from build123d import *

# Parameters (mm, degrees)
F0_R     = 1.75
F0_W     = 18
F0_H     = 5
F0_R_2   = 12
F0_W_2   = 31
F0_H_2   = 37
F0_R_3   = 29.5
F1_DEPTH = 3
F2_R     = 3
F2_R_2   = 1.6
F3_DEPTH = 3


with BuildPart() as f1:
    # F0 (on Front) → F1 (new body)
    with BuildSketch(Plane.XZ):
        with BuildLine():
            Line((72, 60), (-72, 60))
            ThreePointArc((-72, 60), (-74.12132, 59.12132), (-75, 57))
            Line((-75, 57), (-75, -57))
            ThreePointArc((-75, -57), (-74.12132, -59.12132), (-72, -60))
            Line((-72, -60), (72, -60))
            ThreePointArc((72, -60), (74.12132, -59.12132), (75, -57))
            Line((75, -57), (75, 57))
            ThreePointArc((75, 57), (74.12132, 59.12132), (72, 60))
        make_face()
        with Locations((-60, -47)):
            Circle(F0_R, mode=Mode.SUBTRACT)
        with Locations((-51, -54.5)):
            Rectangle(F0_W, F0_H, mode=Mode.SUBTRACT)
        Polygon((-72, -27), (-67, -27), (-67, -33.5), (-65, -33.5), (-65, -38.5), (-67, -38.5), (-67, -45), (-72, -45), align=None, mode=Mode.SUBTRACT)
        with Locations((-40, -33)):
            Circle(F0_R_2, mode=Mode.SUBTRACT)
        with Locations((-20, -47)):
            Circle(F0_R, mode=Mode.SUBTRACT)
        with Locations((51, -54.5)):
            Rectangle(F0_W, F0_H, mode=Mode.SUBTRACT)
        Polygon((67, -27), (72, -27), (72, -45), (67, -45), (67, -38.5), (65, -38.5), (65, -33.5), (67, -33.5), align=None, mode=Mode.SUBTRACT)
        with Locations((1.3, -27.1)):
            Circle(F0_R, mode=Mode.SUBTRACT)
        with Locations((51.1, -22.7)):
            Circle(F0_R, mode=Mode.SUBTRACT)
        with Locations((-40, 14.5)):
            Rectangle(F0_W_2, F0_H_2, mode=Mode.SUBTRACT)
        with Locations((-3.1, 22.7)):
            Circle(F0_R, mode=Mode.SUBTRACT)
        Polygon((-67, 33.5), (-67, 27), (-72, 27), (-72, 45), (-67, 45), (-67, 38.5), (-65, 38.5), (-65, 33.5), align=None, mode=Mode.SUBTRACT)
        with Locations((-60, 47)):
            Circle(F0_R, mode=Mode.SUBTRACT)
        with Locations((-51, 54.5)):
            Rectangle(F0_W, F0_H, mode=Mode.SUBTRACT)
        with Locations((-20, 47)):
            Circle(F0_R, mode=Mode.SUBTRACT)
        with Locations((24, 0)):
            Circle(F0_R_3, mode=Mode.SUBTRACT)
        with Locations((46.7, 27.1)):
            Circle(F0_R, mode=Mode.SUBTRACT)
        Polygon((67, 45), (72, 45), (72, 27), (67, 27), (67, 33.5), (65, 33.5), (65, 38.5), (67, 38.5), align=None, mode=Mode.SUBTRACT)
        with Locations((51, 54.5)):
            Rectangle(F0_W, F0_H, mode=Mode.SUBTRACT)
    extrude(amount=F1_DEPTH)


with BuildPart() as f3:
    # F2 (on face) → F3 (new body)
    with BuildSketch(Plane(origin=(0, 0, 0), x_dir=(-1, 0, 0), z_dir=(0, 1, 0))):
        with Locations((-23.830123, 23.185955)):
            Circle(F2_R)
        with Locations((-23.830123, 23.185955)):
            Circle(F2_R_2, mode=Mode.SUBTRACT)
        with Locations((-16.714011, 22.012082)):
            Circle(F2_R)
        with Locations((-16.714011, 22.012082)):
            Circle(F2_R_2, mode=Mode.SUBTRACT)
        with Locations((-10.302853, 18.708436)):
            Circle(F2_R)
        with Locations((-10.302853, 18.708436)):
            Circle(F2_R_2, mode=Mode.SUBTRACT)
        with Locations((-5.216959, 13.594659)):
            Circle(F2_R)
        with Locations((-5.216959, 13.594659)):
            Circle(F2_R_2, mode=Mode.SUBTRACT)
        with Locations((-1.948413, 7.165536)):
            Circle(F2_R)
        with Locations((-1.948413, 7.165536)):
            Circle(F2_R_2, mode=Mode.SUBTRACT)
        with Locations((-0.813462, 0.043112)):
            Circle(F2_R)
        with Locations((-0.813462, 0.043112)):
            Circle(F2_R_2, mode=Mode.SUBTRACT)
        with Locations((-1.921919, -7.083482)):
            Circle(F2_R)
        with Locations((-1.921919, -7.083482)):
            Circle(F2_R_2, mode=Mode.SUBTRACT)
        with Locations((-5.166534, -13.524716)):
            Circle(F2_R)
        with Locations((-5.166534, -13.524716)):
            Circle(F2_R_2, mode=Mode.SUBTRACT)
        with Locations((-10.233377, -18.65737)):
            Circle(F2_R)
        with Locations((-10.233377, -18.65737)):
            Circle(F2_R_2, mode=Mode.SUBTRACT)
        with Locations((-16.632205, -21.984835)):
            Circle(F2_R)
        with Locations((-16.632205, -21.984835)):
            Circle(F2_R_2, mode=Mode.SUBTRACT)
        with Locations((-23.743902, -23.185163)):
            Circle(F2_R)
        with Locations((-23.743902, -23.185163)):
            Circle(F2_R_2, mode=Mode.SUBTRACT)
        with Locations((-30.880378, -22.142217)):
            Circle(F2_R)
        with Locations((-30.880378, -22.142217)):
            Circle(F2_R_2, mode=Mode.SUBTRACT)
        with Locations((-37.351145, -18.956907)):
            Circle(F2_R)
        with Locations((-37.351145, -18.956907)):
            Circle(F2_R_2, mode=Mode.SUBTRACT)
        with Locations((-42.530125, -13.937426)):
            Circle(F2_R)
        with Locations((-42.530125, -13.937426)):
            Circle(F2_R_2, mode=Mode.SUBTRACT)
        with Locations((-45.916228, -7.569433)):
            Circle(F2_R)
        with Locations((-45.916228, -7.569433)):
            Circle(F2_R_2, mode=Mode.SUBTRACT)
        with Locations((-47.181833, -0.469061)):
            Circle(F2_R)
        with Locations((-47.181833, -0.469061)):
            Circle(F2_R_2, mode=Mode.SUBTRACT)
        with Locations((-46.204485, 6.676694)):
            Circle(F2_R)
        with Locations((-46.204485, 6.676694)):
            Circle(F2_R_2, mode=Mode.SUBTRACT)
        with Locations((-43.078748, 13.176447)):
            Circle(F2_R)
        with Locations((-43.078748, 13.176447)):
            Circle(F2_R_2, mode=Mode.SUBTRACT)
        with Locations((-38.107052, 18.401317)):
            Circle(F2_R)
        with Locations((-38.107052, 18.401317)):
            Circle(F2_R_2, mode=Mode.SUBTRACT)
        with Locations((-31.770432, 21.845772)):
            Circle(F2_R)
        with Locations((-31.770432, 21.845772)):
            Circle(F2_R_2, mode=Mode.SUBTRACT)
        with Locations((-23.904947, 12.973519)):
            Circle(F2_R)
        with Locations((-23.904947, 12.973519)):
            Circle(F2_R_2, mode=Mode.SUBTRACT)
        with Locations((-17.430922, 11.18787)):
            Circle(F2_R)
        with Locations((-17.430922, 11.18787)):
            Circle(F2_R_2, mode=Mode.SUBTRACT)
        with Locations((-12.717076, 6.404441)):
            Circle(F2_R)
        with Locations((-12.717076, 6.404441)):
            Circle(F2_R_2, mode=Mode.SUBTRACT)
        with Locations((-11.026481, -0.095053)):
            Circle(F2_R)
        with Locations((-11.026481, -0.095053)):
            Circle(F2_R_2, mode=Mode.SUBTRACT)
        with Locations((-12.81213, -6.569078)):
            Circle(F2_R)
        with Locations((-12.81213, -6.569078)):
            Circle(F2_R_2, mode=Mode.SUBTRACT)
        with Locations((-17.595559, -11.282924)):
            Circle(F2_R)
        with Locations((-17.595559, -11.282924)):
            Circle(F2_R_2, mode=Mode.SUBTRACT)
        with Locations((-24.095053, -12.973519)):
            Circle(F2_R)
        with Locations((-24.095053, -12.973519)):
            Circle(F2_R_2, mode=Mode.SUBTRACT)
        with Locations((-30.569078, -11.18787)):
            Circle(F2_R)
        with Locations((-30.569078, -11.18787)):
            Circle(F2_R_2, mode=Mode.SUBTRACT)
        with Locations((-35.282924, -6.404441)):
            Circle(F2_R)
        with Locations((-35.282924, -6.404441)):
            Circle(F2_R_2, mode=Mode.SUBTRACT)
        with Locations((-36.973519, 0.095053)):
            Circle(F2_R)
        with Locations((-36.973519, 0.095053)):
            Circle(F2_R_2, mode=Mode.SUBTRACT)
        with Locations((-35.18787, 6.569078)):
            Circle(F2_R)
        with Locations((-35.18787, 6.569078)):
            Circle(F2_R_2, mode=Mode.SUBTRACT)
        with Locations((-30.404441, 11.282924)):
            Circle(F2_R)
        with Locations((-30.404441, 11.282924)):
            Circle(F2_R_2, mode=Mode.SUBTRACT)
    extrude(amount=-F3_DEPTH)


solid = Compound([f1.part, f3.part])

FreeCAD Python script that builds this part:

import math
import FreeCAD as App
import Part
import Sketcher
from FreeCAD import Vector

doc = App.newDocument("Part")
params = doc.addObject("Spreadsheet::Sheet", "Params")
for row, (alias, value) in enumerate([
    ("sketch1_diameter", "24 mm"),
    ("sketch1_diameter2", "59 mm"),
    ("sketch1_radius", "3.000001 mm"),
    ("sketch1_diameter3", "3.5 mm"),
    ("sketch1_width", "144 mm"),
    ("pad1_length", "3 mm"),
    ("sketch2_diameter", "6 mm"),
    ("sketch2_diameter2", "3.2 mm"),
    ("pad2_length", "3 mm"),
], start=1):
    params.set(f"A{row}", alias)
    params.set(f"B{row}", "=" + value)
    params.setAlias(f"B{row}", alias)

body = doc.addObject("PartDesign::Body", "Body")

# Sketch on XZ plane
sketch1 = doc.addObject("Sketcher::SketchObject", "Sketch")
body.addObject(sketch1)
sketch1.AttachmentSupport = (doc.XZ_Plane, [""])
sketch1.MapMode = "FlatFace"
sketch1.addGeometry([
    Part.LineSegment(Vector(72, 60, 0), Vector(-72, 60, 0)),  # 0
    Part.ArcOfCircle(Part.Circle(Vector(-71.999999, 56.999999, 0), Vector(0, 0, 1), 3.000001), math.radians(90.000022), math.radians(179.999978)),  # 1
    Part.LineSegment(Vector(-75, 57, 0), Vector(-75, -57, 0)),  # 2
    Part.ArcOfCircle(Part.Circle(Vector(-71.999999, -56.999999, 0), Vector(0, 0, 1), 3.000001), math.radians(-179.999978), math.radians(-90.000022)),  # 3
    Part.LineSegment(Vector(-72, -60, 0), Vector(72, -60, 0)),  # 4
    Part.ArcOfCircle(Part.Circle(Vector(71.999999, -56.999999, 0), Vector(0, 0, 1), 3.000001), math.radians(-89.999978), math.radians(-0.000022)),  # 5
    Part.LineSegment(Vector(75, -57, 0), Vector(75, 57, 0)),  # 6
    Part.ArcOfCircle(Part.Circle(Vector(71.999999, 56.999999, 0), Vector(0, 0, 1), 3.000001), math.radians(0.000022), math.radians(89.999978)),  # 7
    Part.Circle(Vector(-60, -47, 0), Vector(0, 0, 1), 1.75),  # 8
    Part.LineSegment(Vector(-42, -57, 0), Vector(-60, -57, 0)),  # 9
    Part.LineSegment(Vector(-60, -57, 0), Vector(-60, -52, 0)),  # 10
    Part.LineSegment(Vector(-60, -52, 0), Vector(-42, -52, 0)),  # 11
    Part.LineSegment(Vector(-42, -52, 0), Vector(-42, -57, 0)),  # 12
    Part.LineSegment(Vector(-72, -45, 0), Vector(-72, -27, 0)),  # 13
    Part.LineSegment(Vector(-72, -27, 0), Vector(-67, -27, 0)),  # 14
    Part.LineSegment(Vector(-67, -27, 0), Vector(-67, -33.5, 0)),  # 15
    Part.LineSegment(Vector(-67, -33.5, 0), Vector(-65, -33.5, 0)),  # 16
    Part.LineSegment(Vector(-65, -33.5, 0), Vector(-65, -38.5, 0)),  # 17
    Part.LineSegment(Vector(-65, -38.5, 0), Vector(-67, -38.5, 0)),  # 18
    Part.LineSegment(Vector(-67, -38.5, 0), Vector(-67, -45, 0)),  # 19
    Part.LineSegment(Vector(-67, -45, 0), Vector(-72, -45, 0)),  # 20
    Part.Circle(Vector(-40, -33, 0), Vector(0, 0, 1), 12),  # 21
    Part.Circle(Vector(-20, -47, 0), Vector(0, 0, 1), 1.75),  # 22
    Part.LineSegment(Vector(60, -57, 0), Vector(42, -57, 0)),  # 23
    Part.LineSegment(Vector(42, -57, 0), Vector(42, -52, 0)),  # 24
    Part.LineSegment(Vector(42, -52, 0), Vector(60, -52, 0)),  # 25
    Part.LineSegment(Vector(60, -52, 0), Vector(60, -57, 0)),  # 26
    Part.LineSegment(Vector(67, -33.5, 0), Vector(67, -27, 0)),  # 27
    Part.LineSegment(Vector(67, -27, 0), Vector(72, -27, 0)),  # 28
    Part.LineSegment(Vector(72, -27, 0), Vector(72, -45, 0)),  # 29
    Part.LineSegment(Vector(72, -45, 0), Vector(67, -45, 0)),  # 30
    Part.LineSegment(Vector(67, -45, 0), Vector(67, -38.5, 0)),  # 31
    Part.LineSegment(Vector(67, -38.5, 0), Vector(65, -38.5, 0)),  # 32
    Part.LineSegment(Vector(65, -38.5, 0), Vector(65, -33.5, 0)),  # 33
    Part.LineSegment(Vector(65, -33.5, 0), Vector(67, -33.5, 0)),  # 34
    Part.Circle(Vector(1.3, -27.1, 0), Vector(0, 0, 1), 1.75),  # 35
    Part.Circle(Vector(51.1, -22.7, 0), Vector(0, 0, 1), 1.75),  # 36
    Part.LineSegment(Vector(-24.5, -4, 0), Vector(-55.5, -4, 0)),  # 37
    Part.LineSegment(Vector(-55.5, -4, 0), Vector(-55.5, 33, 0)),  # 38
    Part.LineSegment(Vector(-55.5, 33, 0), Vector(-24.5, 33, 0)),  # 39
    Part.LineSegment(Vector(-24.5, 33, 0), Vector(-24.5, -4, 0)),  # 40
    Part.Circle(Vector(-3.1, 22.7, 0), Vector(0, 0, 1), 1.75),  # 41
    Part.LineSegment(Vector(-65, 33.5, 0), Vector(-67, 33.5, 0)),  # 42
    Part.LineSegment(Vector(-67, 33.5, 0), Vector(-67, 27, 0)),  # 43
    Part.LineSegment(Vector(-67, 27, 0), Vector(-72, 27, 0)),  # 44
    Part.LineSegment(Vector(-72, 27, 0), Vector(-72, 45, 0)),  # 45
    Part.LineSegment(Vector(-72, 45, 0), Vector(-67, 45, 0)),  # 46
    Part.LineSegment(Vector(-67, 45, 0), Vector(-67, 38.5, 0)),  # 47
    Part.LineSegment(Vector(-67, 38.5, 0), Vector(-65, 38.5, 0)),  # 48
    Part.LineSegment(Vector(-65, 38.5, 0), Vector(-65, 33.5, 0)),  # 49
    Part.Circle(Vector(-60, 47, 0), Vector(0, 0, 1), 1.75),  # 50
    Part.LineSegment(Vector(-42, 52, 0), Vector(-60, 52, 0)),  # 51
    Part.LineSegment(Vector(-60, 52, 0), Vector(-60, 57, 0)),  # 52
    Part.LineSegment(Vector(-60, 57, 0), Vector(-42, 57, 0)),  # 53
    Part.LineSegment(Vector(-42, 57, 0), Vector(-42, 52, 0)),  # 54
    Part.Circle(Vector(-20, 47, 0), Vector(0, 0, 1), 1.75),  # 55
    Part.Circle(Vector(24, 0, 0), Vector(0, 0, 1), 29.5),  # 56
    Part.Circle(Vector(46.7, 27.1, 0), Vector(0, 0, 1), 1.75),  # 57
    Part.LineSegment(Vector(67, 38.5, 0), Vector(67, 45, 0)),  # 58
    Part.LineSegment(Vector(67, 45, 0), Vector(72, 45, 0)),  # 59
    Part.LineSegment(Vector(72, 45, 0), Vector(72, 27, 0)),  # 60
    Part.LineSegment(Vector(72, 27, 0), Vector(67, 27, 0)),  # 61
    Part.LineSegment(Vector(67, 27, 0), Vector(67, 33.5, 0)),  # 62
    Part.LineSegment(Vector(67, 33.5, 0), Vector(65, 33.5, 0)),  # 63
    Part.LineSegment(Vector(65, 33.5, 0), Vector(65, 38.5, 0)),  # 64
    Part.LineSegment(Vector(65, 38.5, 0), Vector(67, 38.5, 0)),  # 65
    Part.LineSegment(Vector(60, 52, 0), Vector(42, 52, 0)),  # 66
    Part.LineSegment(Vector(42, 52, 0), Vector(42, 57, 0)),  # 67
    Part.LineSegment(Vector(42, 57, 0), Vector(60, 57, 0)),  # 68
    Part.LineSegment(Vector(60, 57, 0), Vector(60, 52, 0)),  # 69
], False)
sketch1.addConstraint([
    Sketcher.Constraint("Tangent", 0, 2, 1, 1),
    Sketcher.Constraint("Tangent", 1, 2, 2, 1),
    Sketcher.Constraint("Tangent", 2, 2, 3, 1),
    Sketcher.Constraint("Tangent", 3, 2, 4, 1),
    Sketcher.Constraint("Tangent", 4, 2, 5, 1),
    Sketcher.Constraint("Tangent", 5, 2, 6, 1),
    Sketcher.Constraint("Tangent", 6, 2, 7, 1),
    Sketcher.Constraint("Tangent", 7, 2, 0, 1),
    Sketcher.Constraint("Coincident", 9, 2, 10, 1),
    Sketcher.Constraint("Coincident", 10, 2, 11, 1),
    Sketcher.Constraint("Coincident", 11, 2, 12, 1),
    Sketcher.Constraint("Coincident", 12, 2, 9, 1),
    Sketcher.Constraint("Coincident", 13, 2, 14, 1),
    Sketcher.Constraint("Coincident", 14, 2, 15, 1),
    Sketcher.Constraint("Coincident", 15, 2, 16, 1),
    Sketcher.Constraint("Coincident", 16, 2, 17, 1),
    Sketcher.Constraint("Coincident", 17, 2, 18, 1),
    Sketcher.Constraint("Coincident", 18, 2, 19, 1),
    Sketcher.Constraint("Coincident", 19, 2, 20, 1),
    Sketcher.Constraint("Coincident", 20, 2, 13, 1),
    Sketcher.Constraint("Coincident", 23, 2, 24, 1),
    Sketcher.Constraint("Coincident", 24, 2, 25, 1),
    Sketcher.Constraint("Coincident", 25, 2, 26, 1),
    Sketcher.Constraint("Coincident", 26, 2, 23, 1),
    Sketcher.Constraint("Coincident", 27, 2, 28, 1),
    Sketcher.Constraint("Coincident", 28, 2, 29, 1),
    Sketcher.Constraint("Coincident", 29, 2, 30, 1),
    Sketcher.Constraint("Coincident", 30, 2, 31, 1),
    Sketcher.Constraint("Coincident", 31, 2, 32, 1),
    Sketcher.Constraint("Coincident", 32, 2, 33, 1),
    Sketcher.Constraint("Coincident", 33, 2, 34, 1),
    Sketcher.Constraint("Coincident", 34, 2, 27, 1),
    Sketcher.Constraint("Coincident", 37, 2, 38, 1),
    Sketcher.Constraint("Coincident", 38, 2, 39, 1),
    Sketcher.Constraint("Coincident", 39, 2, 40, 1),
    Sketcher.Constraint("Coincident", 40, 2, 37, 1),
    Sketcher.Constraint("Coincident", 42, 2, 43, 1),
    Sketcher.Constraint("Coincident", 43, 2, 44, 1),
    Sketcher.Constraint("Coincident", 44, 2, 45, 1),
    Sketcher.Constraint("Coincident", 45, 2, 46, 1),
    Sketcher.Constraint("Coincident", 46, 2, 47, 1),
    Sketcher.Constraint("Coincident", 47, 2, 48, 1),
    Sketcher.Constraint("Coincident", 48, 2, 49, 1),
    Sketcher.Constraint("Coincident", 49, 2, 42, 1),
    Sketcher.Constraint("Coincident", 51, 2, 52, 1),
    Sketcher.Constraint("Coincident", 52, 2, 53, 1),
    Sketcher.Constraint("Coincident", 53, 2, 54, 1),
    Sketcher.Constraint("Coincident", 54, 2, 51, 1),
    Sketcher.Constraint("Coincident", 58, 2, 59, 1),
    Sketcher.Constraint("Coincident", 59, 2, 60, 1),
    Sketcher.Constraint("Coincident", 60, 2, 61, 1),
    Sketcher.Constraint("Coincident", 61, 2, 62, 1),
    Sketcher.Constraint("Coincident", 62, 2, 63, 1),
    Sketcher.Constraint("Coincident", 63, 2, 64, 1),
    Sketcher.Constraint("Coincident", 64, 2, 65, 1),
    Sketcher.Constraint("Coincident", 65, 2, 58, 1),
    Sketcher.Constraint("Coincident", 66, 2, 67, 1),
    Sketcher.Constraint("Coincident", 67, 2, 68, 1),
    Sketcher.Constraint("Coincident", 68, 2, 69, 1),
    Sketcher.Constraint("Coincident", 69, 2, 66, 1),
    Sketcher.Constraint("Horizontal", 0),
    Sketcher.Constraint("Vertical", 2),
    Sketcher.Constraint("Horizontal", 4),
    Sketcher.Constraint("Vertical", 6),
    Sketcher.Constraint("Horizontal", 9),
    Sketcher.Constraint("Vertical", 10),
    Sketcher.Constraint("Horizontal", 11),
    Sketcher.Constraint("Vertical", 12),
    Sketcher.Constraint("Vertical", 13),
    Sketcher.Constraint("Horizontal", 14),
    Sketcher.Constraint("Vertical", 15),
    Sketcher.Constraint("Horizontal", 16),
    Sketcher.Constraint("Vertical", 17),
    Sketcher.Constraint("Horizontal", 18),
    Sketcher.Constraint("Vertical", 19),
    Sketcher.Constraint("Horizontal", 20),
    Sketcher.Constraint("Horizontal", 23),
    Sketcher.Constraint("Vertical", 24),
    Sketcher.Constraint("Horizontal", 25),
    Sketcher.Constraint("Vertical", 26),
    Sketcher.Constraint("Vertical", 27),
    Sketcher.Constraint("Horizontal", 28),
    Sketcher.Constraint("Vertical", 29),
    Sketcher.Constraint("Horizontal", 30),
    Sketcher.Constraint("Vertical", 31),
    Sketcher.Constraint("Horizontal", 32),
    Sketcher.Constraint("Vertical", 33),
    Sketcher.Constraint("Horizontal", 34),
    Sketcher.Constraint("Horizontal", 37),
    Sketcher.Constraint("Vertical", 38),
    Sketcher.Constraint("Horizontal", 39),
    Sketcher.Constraint("Vertical", 40),
    Sketcher.Constraint("Horizontal", 42),
    Sketcher.Constraint("Vertical", 43),
    Sketcher.Constraint("Horizontal", 44),
    Sketcher.Constraint("Vertical", 45),
    Sketcher.Constraint("Horizontal", 46),
    Sketcher.Constraint("Vertical", 47),
    Sketcher.Constraint("Horizontal", 48),
    Sketcher.Constraint("Vertical", 49),
    Sketcher.Constraint("Horizontal", 51),
    Sketcher.Constraint("Vertical", 52),
    Sketcher.Constraint("Horizontal", 53),
    Sketcher.Constraint("Vertical", 54),
    Sketcher.Constraint("Vertical", 58),
    Sketcher.Constraint("Horizontal", 59),
    Sketcher.Constraint("Vertical", 60),
    Sketcher.Constraint("Horizontal", 61),
    Sketcher.Constraint("Vertical", 62),
    Sketcher.Constraint("Horizontal", 63),
    Sketcher.Constraint("Vertical", 64),
    Sketcher.Constraint("Horizontal", 65),
    Sketcher.Constraint("Horizontal", 66),
    Sketcher.Constraint("Vertical", 67),
    Sketcher.Constraint("Horizontal", 68),
    Sketcher.Constraint("Vertical", 69),
    Sketcher.Constraint("Equal", 1, 3),
    Sketcher.Constraint("Equal", 3, 5),
    Sketcher.Constraint("Equal", 5, 7),
    Sketcher.Constraint("Equal", 8, 22),
    Sketcher.Constraint("Equal", 22, 35),
    Sketcher.Constraint("Equal", 35, 36),
    Sketcher.Constraint("Equal", 36, 41),
    Sketcher.Constraint("Equal", 41, 50),
    Sketcher.Constraint("Equal", 50, 55),
    Sketcher.Constraint("Equal", 55, 57),
    Sketcher.Constraint("Symmetric", 1, 3, 5, 3, -1, 1),
    Sketcher.Constraint("Symmetric", 34, 2, 42, 2, -1, 1),
    Sketcher.Constraint("Symmetric", 28, 2, 44, 2, -1, 1),
    Sketcher.Constraint("Symmetric", 30, 2, 46, 2, -1, 1),
    Sketcher.Constraint("Symmetric", 32, 2, 48, 2, -1, 1),
    Sketcher.Constraint("Symmetric", 25, 2, 51, 2, -1, 1),
    Sketcher.Constraint("Symmetric", 23, 2, 53, 2, -1, 1),
    Sketcher.Constraint("Symmetric", 19, 2, 58, 2, -1, 1),
    Sketcher.Constraint("Symmetric", 13, 2, 60, 2, -1, 1),
    Sketcher.Constraint("Symmetric", 15, 2, 62, 2, -1, 1),
    Sketcher.Constraint("Symmetric", 17, 2, 64, 2, -1, 1),
    Sketcher.Constraint("Symmetric", 11, 2, 66, 2, -1, 1),
    Sketcher.Constraint("Symmetric", 9, 2, 68, 2, -1, 1),
    Sketcher.Constraint("Symmetric", 12, 2, 23, 2, -2),
    Sketcher.Constraint("Symmetric", 10, 2, 25, 2, -2),
    Sketcher.Constraint("Symmetric", 14, 2, 27, 2, -2),
    Sketcher.Constraint("Symmetric", 20, 2, 29, 2, -2),
    Sketcher.Constraint("Symmetric", 18, 2, 31, 2, -2),
    Sketcher.Constraint("Symmetric", 16, 2, 33, 2, -2),
    Sketcher.Constraint("Symmetric", 8, 3, 50, 3, -1),
    Sketcher.Constraint("Symmetric", 22, 3, 55, 3, -1),
    Sketcher.Constraint("PointOnObject", 56, 3, -1),
    Sketcher.Constraint("Horizontal", 8, 3, 22, 3),
    Sketcher.Constraint("Horizontal", 5, 2, 9, 2),
    Sketcher.Constraint("Vertical", 50, 3, 9, 2),
    Sketcher.Constraint("Vertical", 3, 2, 13, 2),
    Sketcher.Constraint("Vertical", 15, 2, 18, 2),
    Sketcher.Constraint("Equal", 61, 10),
    Sketcher.Constraint("Equal", 68, 13),
    Sketcher.Constraint("Equal", 12, 17),
    Sketcher.Constraint("Equal", 15, 19),
    Sketcher.Constraint("Diameter", 21, 24.0),
    Sketcher.Constraint("Diameter", 56, 59.0),
    Sketcher.Constraint("Radius", 1, 3.000001),
    Sketcher.Constraint("Diameter", 8, 3.5),
    Sketcher.Constraint("DistanceX", 0, 2, 0, 1, 144.0),
    Sketcher.Constraint("DistanceX", 9, 2, 9, 1, 18.0),
    Sketcher.Constraint("DistanceX", 14, 1, 14, 2, 5.0),
    Sketcher.Constraint("DistanceX", 16, 1, 16, 2, 2.0),
    Sketcher.Constraint("DistanceX", 37, 2, 37, 1, 31.0),
    Sketcher.Constraint("DistanceY", 2, 2, 2, 1, 114.0),
    Sketcher.Constraint("DistanceY", 38, 1, 38, 2, 37.0),
    Sketcher.Constraint("DistanceX", 8, 3, -1, 1, 60.0),
    Sketcher.Constraint("DistanceY", 8, 3, -1, 1, 47.0),
    Sketcher.Constraint("DistanceX", 21, 3, -1, 1, 40.0),
    Sketcher.Constraint("DistanceY", 21, 3, -1, 1, 33.0),
    Sketcher.Constraint("DistanceX", 22, 3, -1, 1, 20.0),
    Sketcher.Constraint("DistanceX", -1, 1, 56, 3, 24.0),
    Sketcher.Constraint("DistanceY", 13, 2, -1, 1, 27.0),
    Sketcher.Constraint("DistanceY", 37, 2, -1, 1, 4.0),
    Sketcher.Constraint("DistanceX", -1, 1, 35, 3, 1.3),
    Sketcher.Constraint("DistanceY", 35, 3, -1, 1, 27.1),
    Sketcher.Constraint("DistanceX", -1, 1, 36, 3, 51.1),
    Sketcher.Constraint("DistanceY", 36, 3, -1, 1, 22.7),
    Sketcher.Constraint("DistanceX", 41, 3, -1, 1, 3.1),
    Sketcher.Constraint("DistanceY", -1, 1, 41, 3, 22.7),
    Sketcher.Constraint("DistanceX", -1, 1, 57, 3, 46.7),
    Sketcher.Constraint("DistanceY", -1, 1, 57, 3, 27.1),
    Sketcher.Constraint("DistanceX", 37, 2, -1, 1, 55.5),
])
sketch1.setExpression("Constraints[157]", "Params.sketch1_diameter")
sketch1.setExpression("Constraints[158]", "Params.sketch1_diameter2")
sketch1.setExpression("Constraints[159]", "Params.sketch1_radius")
sketch1.setExpression("Constraints[160]", "Params.sketch1_diameter3")
sketch1.setExpression("Constraints[161]", "Params.sketch1_width")
pad1 = doc.addObject("PartDesign::Pad", "Pad")
body.addObject(pad1)
pad1.Profile = sketch1
pad1.setExpression("Length", "Params.pad1_length")
body2 = doc.addObject("PartDesign::Body", "Body001")
body2.AllowCompound = True

# Sketch on XZ plane
sketch2 = doc.addObject("Sketcher::SketchObject", "Sketch001")
body2.addObject(sketch2)
sketch2.AttachmentSupport = (doc.getObject("XZ_Plane001"), [""])
sketch2.MapMode = "FlatFace"
sketch2.addGeometry([
    Part.Circle(Vector(23.830123, 23.185955, 0), Vector(0, 0, 1), 3),  # 0
    Part.Circle(Vector(23.830123, 23.185955, 0), Vector(0, 0, 1), 1.6),  # 1
    Part.Circle(Vector(16.714011, 22.012082, 0), Vector(0, 0, 1), 3),  # 2
    Part.Circle(Vector(16.714011, 22.012082, 0), Vector(0, 0, 1), 1.6),  # 3
    Part.Circle(Vector(10.302853, 18.708436, 0), Vector(0, 0, 1), 3),  # 4
    Part.Circle(Vector(10.302853, 18.708436, 0), Vector(0, 0, 1), 1.6),  # 5
    Part.Circle(Vector(5.216959, 13.594659, 0), Vector(0, 0, 1), 3),  # 6
    Part.Circle(Vector(5.216959, 13.594659, 0), Vector(0, 0, 1), 1.6),  # 7
    Part.Circle(Vector(1.948413, 7.165536, 0), Vector(0, 0, 1), 3),  # 8
    Part.Circle(Vector(1.948413, 7.165536, 0), Vector(0, 0, 1), 1.6),  # 9
    Part.Circle(Vector(0.813462, 0.043112, 0), Vector(0, 0, 1), 3),  # 10
    Part.Circle(Vector(0.813462, 0.043112, 0), Vector(0, 0, 1), 1.6),  # 11
    Part.Circle(Vector(1.921919, -7.083482, 0), Vector(0, 0, 1), 3),  # 12
    Part.Circle(Vector(1.921919, -7.083482, 0), Vector(0, 0, 1), 1.6),  # 13
    Part.Circle(Vector(5.166534, -13.524716, 0), Vector(0, 0, 1), 3),  # 14
    Part.Circle(Vector(5.166534, -13.524716, 0), Vector(0, 0, 1), 1.6),  # 15
    Part.Circle(Vector(10.233377, -18.65737, 0), Vector(0, 0, 1), 3),  # 16
    Part.Circle(Vector(10.233377, -18.65737, 0), Vector(0, 0, 1), 1.6),  # 17
    Part.Circle(Vector(16.632205, -21.984835, 0), Vector(0, 0, 1), 3),  # 18
    Part.Circle(Vector(16.632205, -21.984835, 0), Vector(0, 0, 1), 1.6),  # 19
    Part.Circle(Vector(23.743902, -23.185163, 0), Vector(0, 0, 1), 3),  # 20
    Part.Circle(Vector(23.743902, -23.185163, 0), Vector(0, 0, 1), 1.6),  # 21
    Part.Circle(Vector(30.880378, -22.142217, 0), Vector(0, 0, 1), 3),  # 22
    Part.Circle(Vector(30.880378, -22.142217, 0), Vector(0, 0, 1), 1.6),  # 23
    Part.Circle(Vector(37.351145, -18.956907, 0), Vector(0, 0, 1), 3),  # 24
    Part.Circle(Vector(37.351145, -18.956907, 0), Vector(0, 0, 1), 1.6),  # 25
    Part.Circle(Vector(42.530125, -13.937426, 0), Vector(0, 0, 1), 3),  # 26
    Part.Circle(Vector(42.530125, -13.937426, 0), Vector(0, 0, 1), 1.6),  # 27
    Part.Circle(Vector(45.916228, -7.569433, 0), Vector(0, 0, 1), 3),  # 28
    Part.Circle(Vector(45.916228, -7.569433, 0), Vector(0, 0, 1), 1.6),  # 29
    Part.Circle(Vector(47.181833, -0.469061, 0), Vector(0, 0, 1), 3),  # 30
    Part.Circle(Vector(47.181833, -0.469061, 0), Vector(0, 0, 1), 1.6),  # 31
    Part.Circle(Vector(46.204485, 6.676694, 0), Vector(0, 0, 1), 3),  # 32
    Part.Circle(Vector(46.204485, 6.676694, 0), Vector(0, 0, 1), 1.6),  # 33
    Part.Circle(Vector(43.078748, 13.176447, 0), Vector(0, 0, 1), 3),  # 34
    Part.Circle(Vector(43.078748, 13.176447, 0), Vector(0, 0, 1), 1.6),  # 35
    Part.Circle(Vector(38.107052, 18.401317, 0), Vector(0, 0, 1), 3),  # 36
    Part.Circle(Vector(38.107052, 18.401317, 0), Vector(0, 0, 1), 1.6),  # 37
    Part.Circle(Vector(31.770432, 21.845772, 0), Vector(0, 0, 1), 3),  # 38
    Part.Circle(Vector(31.770432, 21.845772, 0), Vector(0, 0, 1), 1.6),  # 39
    Part.Circle(Vector(23.904947, 12.973519, 0), Vector(0, 0, 1), 3),  # 40
    Part.Circle(Vector(23.904947, 12.973519, 0), Vector(0, 0, 1), 1.6),  # 41
    Part.Circle(Vector(17.430922, 11.18787, 0), Vector(0, 0, 1), 3),  # 42
    Part.Circle(Vector(17.430922, 11.18787, 0), Vector(0, 0, 1), 1.6),  # 43
    Part.Circle(Vector(12.717076, 6.404441, 0), Vector(0, 0, 1), 3),  # 44
    Part.Circle(Vector(12.717076, 6.404441, 0), Vector(0, 0, 1), 1.6),  # 45
    Part.Circle(Vector(11.026481, -0.095053, 0), Vector(0, 0, 1), 3),  # 46
    Part.Circle(Vector(11.026481, -0.095053, 0), Vector(0, 0, 1), 1.6),  # 47
    Part.Circle(Vector(12.81213, -6.569078, 0), Vector(0, 0, 1), 3),  # 48
    Part.Circle(Vector(12.81213, -6.569078, 0), Vector(0, 0, 1), 1.6),  # 49
    Part.Circle(Vector(17.595559, -11.282924, 0), Vector(0, 0, 1), 3),  # 50
    Part.Circle(Vector(17.595559, -11.282924, 0), Vector(0, 0, 1), 1.6),  # 51
    Part.Circle(Vector(24.095053, -12.973519, 0), Vector(0, 0, 1), 3),  # 52
    Part.Circle(Vector(24.095053, -12.973519, 0), Vector(0, 0, 1), 1.6),  # 53
    Part.Circle(Vector(30.569078, -11.18787, 0), Vector(0, 0, 1), 3),  # 54
    Part.Circle(Vector(30.569078, -11.18787, 0), Vector(0, 0, 1), 1.6),  # 55
    Part.Circle(Vector(35.282924, -6.404441, 0), Vector(0, 0, 1), 3),  # 56
    Part.Circle(Vector(35.282924, -6.404441, 0), Vector(0, 0, 1), 1.6),  # 57
    Part.Circle(Vector(36.973519, 0.095053, 0), Vector(0, 0, 1), 3),  # 58
    Part.Circle(Vector(36.973519, 0.095053, 0), Vector(0, 0, 1), 1.6),  # 59
    Part.Circle(Vector(35.18787, 6.569078, 0), Vector(0, 0, 1), 3),  # 60
    Part.Circle(Vector(35.18787, 6.569078, 0), Vector(0, 0, 1), 1.6),  # 61
    Part.Circle(Vector(30.404441, 11.282924, 0), Vector(0, 0, 1), 3),  # 62
    Part.Circle(Vector(30.404441, 11.282924, 0), Vector(0, 0, 1), 1.6),  # 63
], False)
sketch2.addConstraint([
    Sketcher.Constraint("Coincident", 1, 3, 0, 3),
    Sketcher.Constraint("Coincident", 3, 3, 2, 3),
    Sketcher.Constraint("Coincident", 5, 3, 4, 3),
    Sketcher.Constraint("Coincident", 7, 3, 6, 3),
    Sketcher.Constraint("Coincident", 9, 3, 8, 3),
    Sketcher.Constraint("Coincident", 11, 3, 10, 3),
    Sketcher.Constraint("Coincident", 13, 3, 12, 3),
    Sketcher.Constraint("Coincident", 15, 3, 14, 3),
    Sketcher.Constraint("Coincident", 17, 3, 16, 3),
    Sketcher.Constraint("Coincident", 19, 3, 18, 3),
    Sketcher.Constraint("Coincident", 21, 3, 20, 3),
    Sketcher.Constraint("Coincident", 23, 3, 22, 3),
    Sketcher.Constraint("Coincident", 25, 3, 24, 3),
    Sketcher.Constraint("Coincident", 27, 3, 26, 3),
    Sketcher.Constraint("Coincident", 29, 3, 28, 3),
    Sketcher.Constraint("Coincident", 31, 3, 30, 3),
    Sketcher.Constraint("Coincident", 33, 3, 32, 3),
    Sketcher.Constraint("Coincident", 35, 3, 34, 3),
    Sketcher.Constraint("Coincident", 37, 3, 36, 3),
    Sketcher.Constraint("Coincident", 39, 3, 38, 3),
    Sketcher.Constraint("Coincident", 41, 3, 40, 3),
    Sketcher.Constraint("Coincident", 43, 3, 42, 3),
    Sketcher.Constraint("Coincident", 45, 3, 44, 3),
    Sketcher.Constraint("Coincident", 47, 3, 46, 3),
    Sketcher.Constraint("Coincident", 49, 3, 48, 3),
    Sketcher.Constraint("Coincident", 51, 3, 50, 3),
    Sketcher.Constraint("Coincident", 53, 3, 52, 3),
    Sketcher.Constraint("Coincident", 55, 3, 54, 3),
    Sketcher.Constraint("Coincident", 57, 3, 56, 3),
    Sketcher.Constraint("Coincident", 59, 3, 58, 3),
    Sketcher.Constraint("Coincident", 61, 3, 60, 3),
    Sketcher.Constraint("Coincident", 63, 3, 62, 3),
    Sketcher.Constraint("Equal", 0, 2),
    Sketcher.Constraint("Equal", 1, 3),
    Sketcher.Constraint("Equal", 2, 4),
    Sketcher.Constraint("Equal", 3, 5),
    Sketcher.Constraint("Equal", 4, 6),
    Sketcher.Constraint("Equal", 5, 7),
    Sketcher.Constraint("Equal", 6, 8),
    Sketcher.Constraint("Equal", 7, 9),
    Sketcher.Constraint("Equal", 8, 10),
    Sketcher.Constraint("Equal", 9, 11),
    Sketcher.Constraint("Equal", 10, 12),
    Sketcher.Constraint("Equal", 11, 13),
    Sketcher.Constraint("Equal", 12, 14),
    Sketcher.Constraint("Equal", 13, 15),
    Sketcher.Constraint("Equal", 14, 16),
    Sketcher.Constraint("Equal", 15, 17),
    Sketcher.Constraint("Equal", 16, 18),
    Sketcher.Constraint("Equal", 17, 19),
    Sketcher.Constraint("Equal", 18, 20),
    Sketcher.Constraint("Equal", 19, 21),
    Sketcher.Constraint("Equal", 20, 22),
    Sketcher.Constraint("Equal", 21, 23),
    Sketcher.Constraint("Equal", 22, 24),
    Sketcher.Constraint("Equal", 23, 25),
    Sketcher.Constraint("Equal", 24, 26),
    Sketcher.Constraint("Equal", 25, 27),
    Sketcher.Constraint("Equal", 26, 28),
    Sketcher.Constraint("Equal", 27, 29),
    Sketcher.Constraint("Equal", 28, 30),
    Sketcher.Constraint("Equal", 29, 31),
    Sketcher.Constraint("Equal", 30, 32),
    Sketcher.Constraint("Equal", 31, 33),
    Sketcher.Constraint("Equal", 32, 34),
    Sketcher.Constraint("Equal", 33, 35),
    Sketcher.Constraint("Equal", 34, 36),
    Sketcher.Constraint("Equal", 35, 37),
    Sketcher.Constraint("Equal", 36, 38),
    Sketcher.Constraint("Equal", 37, 39),
    Sketcher.Constraint("Equal", 38, 40),
    Sketcher.Constraint("Equal", 39, 41),
    Sketcher.Constraint("Equal", 40, 42),
    Sketcher.Constraint("Equal", 41, 43),
    Sketcher.Constraint("Equal", 42, 44),
    Sketcher.Constraint("Equal", 43, 45),
    Sketcher.Constraint("Equal", 44, 46),
    Sketcher.Constraint("Equal", 45, 47),
    Sketcher.Constraint("Equal", 46, 48),
    Sketcher.Constraint("Equal", 47, 49),
    Sketcher.Constraint("Equal", 48, 50),
    Sketcher.Constraint("Equal", 49, 51),
    Sketcher.Constraint("Equal", 50, 52),
    Sketcher.Constraint("Equal", 51, 53),
    Sketcher.Constraint("Equal", 52, 54),
    Sketcher.Constraint("Equal", 53, 55),
    Sketcher.Constraint("Equal", 54, 56),
    Sketcher.Constraint("Equal", 55, 57),
    Sketcher.Constraint("Equal", 56, 58),
    Sketcher.Constraint("Equal", 57, 59),
    Sketcher.Constraint("Equal", 58, 60),
    Sketcher.Constraint("Equal", 59, 61),
    Sketcher.Constraint("Equal", 60, 62),
    Sketcher.Constraint("Equal", 61, 63),
    Sketcher.Constraint("Diameter", 0, 6.0),
    Sketcher.Constraint("Diameter", 1, 3.2),
    Sketcher.Constraint("DistanceX", -1, 1, 20, 3, 23.743902),
    Sketcher.Constraint("DistanceX", -1, 1, 2, 3, 16.714011),
    Sketcher.Constraint("DistanceY", -1, 1, 2, 3, 22.012082),
    Sketcher.Constraint("DistanceX", -1, 1, 6, 3, 5.216959),
    Sketcher.Constraint("DistanceY", -1, 1, 6, 3, 13.594659),
    Sketcher.Constraint("DistanceY", -1, 1, 10, 3, 0.043112),
    Sketcher.Constraint("DistanceX", -1, 1, 12, 3, 1.921919),
    Sketcher.Constraint("DistanceY", 16, 3, -1, 1, 18.65737),
    Sketcher.Constraint("DistanceX", -1, 1, 22, 3, 30.880378),
    Sketcher.Constraint("DistanceY", 30, 3, -1, 1, 0.469061),
    Sketcher.Constraint("DistanceX", -1, 1, 38, 3, 31.770432),
    Sketcher.Constraint("DistanceY", -1, 1, 38, 3, 21.845772),
    Sketcher.Constraint("DistanceY", -1, 1, 40, 3, 12.973519),
    Sketcher.Constraint("DistanceX", -1, 1, 42, 3, 17.430922),
    Sketcher.Constraint("DistanceY", -1, 1, 42, 3, 11.18787),
    Sketcher.Constraint("DistanceY", -1, 1, 44, 3, 6.404441),
    Sketcher.Constraint("DistanceX", -1, 1, 46, 3, 11.026481),
    Sketcher.Constraint("DistanceX", -1, 1, 48, 3, 12.81213),
    Sketcher.Constraint("DistanceY", 48, 3, -1, 1, 6.569078),
    Sketcher.Constraint("DistanceX", -1, 1, 50, 3, 17.595559),
    Sketcher.Constraint("DistanceY", 52, 3, -1, 1, 12.973519),
    Sketcher.Constraint("DistanceX", -1, 1, 54, 3, 30.569078),
    Sketcher.Constraint("DistanceY", 54, 3, -1, 1, 11.18787),
    Sketcher.Constraint("DistanceY", 56, 3, -1, 1, 6.404441),
    Sketcher.Constraint("DistanceX", -1, 1, 58, 3, 36.973519),
    Sketcher.Constraint("DistanceX", -1, 1, 60, 3, 35.18787),
    Sketcher.Constraint("DistanceY", -1, 1, 60, 3, 6.569078),
    Sketcher.Constraint("DistanceX", -1, 1, 62, 3, 30.404441),
    Sketcher.Constraint("DistanceX", -1, 1, 0, 3, 23.830123),
    Sketcher.Constraint("DistanceY", -1, 1, 0, 3, 23.185955),
    Sketcher.Constraint("DistanceX", -1, 1, 4, 3, 10.302853),
    Sketcher.Constraint("DistanceY", -1, 1, 4, 3, 18.708436),
    Sketcher.Constraint("DistanceX", -1, 1, 8, 3, 1.948413),
    Sketcher.Constraint("DistanceY", -1, 1, 8, 3, 7.165536),
    Sketcher.Constraint("DistanceX", -1, 1, 10, 3, 0.813462),
    Sketcher.Constraint("DistanceY", 12, 3, -1, 1, 7.083482),
    Sketcher.Constraint("DistanceX", -1, 1, 14, 3, 5.166534),
    Sketcher.Constraint("DistanceY", 14, 3, -1, 1, 13.524716),
    Sketcher.Constraint("DistanceX", -1, 1, 16, 3, 10.233377),
    Sketcher.Constraint("DistanceX", -1, 1, 18, 3, 16.632205),
    Sketcher.Constraint("DistanceY", 18, 3, -1, 1, 21.984835),
    Sketcher.Constraint("DistanceY", 20, 3, -1, 1, 23.185163),
    Sketcher.Constraint("DistanceY", 22, 3, -1, 1, 22.142217),
    Sketcher.Constraint("DistanceX", -1, 1, 24, 3, 37.351145),
    Sketcher.Constraint("DistanceY", 24, 3, -1, 1, 18.956907),
    Sketcher.Constraint("DistanceX", -1, 1, 26, 3, 42.530125),
    Sketcher.Constraint("DistanceY", 26, 3, -1, 1, 13.937426),
    Sketcher.Constraint("DistanceX", -1, 1, 28, 3, 45.916228),
    Sketcher.Constraint("DistanceY", 28, 3, -1, 1, 7.569433),
    Sketcher.Constraint("DistanceX", -1, 1, 30, 3, 47.181833),
    Sketcher.Constraint("DistanceX", -1, 1, 32, 3, 46.204485),
    Sketcher.Constraint("DistanceY", -1, 1, 32, 3, 6.676694),
    Sketcher.Constraint("DistanceX", -1, 1, 34, 3, 43.078748),
    Sketcher.Constraint("DistanceY", -1, 1, 34, 3, 13.176447),
    Sketcher.Constraint("DistanceX", -1, 1, 36, 3, 38.107052),
    Sketcher.Constraint("DistanceY", -1, 1, 36, 3, 18.401317),
    Sketcher.Constraint("DistanceX", -1, 1, 40, 3, 23.904947),
    Sketcher.Constraint("DistanceX", -1, 1, 44, 3, 12.717076),
    Sketcher.Constraint("DistanceY", 46, 3, -1, 1, 0.095053),
    Sketcher.Constraint("DistanceY", 50, 3, -1, 1, 11.282924),
    Sketcher.Constraint("DistanceX", -1, 1, 52, 3, 24.095053),
    Sketcher.Constraint("DistanceX", -1, 1, 56, 3, 35.282924),
    Sketcher.Constraint("DistanceY", -1, 1, 58, 3, 0.095053),
    Sketcher.Constraint("DistanceY", -1, 1, 62, 3, 11.282924),
])
sketch2.setExpression("Constraints[94]", "Params.sketch2_diameter")
sketch2.setExpression("Constraints[95]", "Params.sketch2_diameter2")
pad2 = doc.addObject("PartDesign::Pad", "Pad001")
body2.addObject(pad2)
pad2.Profile = sketch2
pad2.setExpression("Length", "Params.pad2_length")

doc.recompute()
